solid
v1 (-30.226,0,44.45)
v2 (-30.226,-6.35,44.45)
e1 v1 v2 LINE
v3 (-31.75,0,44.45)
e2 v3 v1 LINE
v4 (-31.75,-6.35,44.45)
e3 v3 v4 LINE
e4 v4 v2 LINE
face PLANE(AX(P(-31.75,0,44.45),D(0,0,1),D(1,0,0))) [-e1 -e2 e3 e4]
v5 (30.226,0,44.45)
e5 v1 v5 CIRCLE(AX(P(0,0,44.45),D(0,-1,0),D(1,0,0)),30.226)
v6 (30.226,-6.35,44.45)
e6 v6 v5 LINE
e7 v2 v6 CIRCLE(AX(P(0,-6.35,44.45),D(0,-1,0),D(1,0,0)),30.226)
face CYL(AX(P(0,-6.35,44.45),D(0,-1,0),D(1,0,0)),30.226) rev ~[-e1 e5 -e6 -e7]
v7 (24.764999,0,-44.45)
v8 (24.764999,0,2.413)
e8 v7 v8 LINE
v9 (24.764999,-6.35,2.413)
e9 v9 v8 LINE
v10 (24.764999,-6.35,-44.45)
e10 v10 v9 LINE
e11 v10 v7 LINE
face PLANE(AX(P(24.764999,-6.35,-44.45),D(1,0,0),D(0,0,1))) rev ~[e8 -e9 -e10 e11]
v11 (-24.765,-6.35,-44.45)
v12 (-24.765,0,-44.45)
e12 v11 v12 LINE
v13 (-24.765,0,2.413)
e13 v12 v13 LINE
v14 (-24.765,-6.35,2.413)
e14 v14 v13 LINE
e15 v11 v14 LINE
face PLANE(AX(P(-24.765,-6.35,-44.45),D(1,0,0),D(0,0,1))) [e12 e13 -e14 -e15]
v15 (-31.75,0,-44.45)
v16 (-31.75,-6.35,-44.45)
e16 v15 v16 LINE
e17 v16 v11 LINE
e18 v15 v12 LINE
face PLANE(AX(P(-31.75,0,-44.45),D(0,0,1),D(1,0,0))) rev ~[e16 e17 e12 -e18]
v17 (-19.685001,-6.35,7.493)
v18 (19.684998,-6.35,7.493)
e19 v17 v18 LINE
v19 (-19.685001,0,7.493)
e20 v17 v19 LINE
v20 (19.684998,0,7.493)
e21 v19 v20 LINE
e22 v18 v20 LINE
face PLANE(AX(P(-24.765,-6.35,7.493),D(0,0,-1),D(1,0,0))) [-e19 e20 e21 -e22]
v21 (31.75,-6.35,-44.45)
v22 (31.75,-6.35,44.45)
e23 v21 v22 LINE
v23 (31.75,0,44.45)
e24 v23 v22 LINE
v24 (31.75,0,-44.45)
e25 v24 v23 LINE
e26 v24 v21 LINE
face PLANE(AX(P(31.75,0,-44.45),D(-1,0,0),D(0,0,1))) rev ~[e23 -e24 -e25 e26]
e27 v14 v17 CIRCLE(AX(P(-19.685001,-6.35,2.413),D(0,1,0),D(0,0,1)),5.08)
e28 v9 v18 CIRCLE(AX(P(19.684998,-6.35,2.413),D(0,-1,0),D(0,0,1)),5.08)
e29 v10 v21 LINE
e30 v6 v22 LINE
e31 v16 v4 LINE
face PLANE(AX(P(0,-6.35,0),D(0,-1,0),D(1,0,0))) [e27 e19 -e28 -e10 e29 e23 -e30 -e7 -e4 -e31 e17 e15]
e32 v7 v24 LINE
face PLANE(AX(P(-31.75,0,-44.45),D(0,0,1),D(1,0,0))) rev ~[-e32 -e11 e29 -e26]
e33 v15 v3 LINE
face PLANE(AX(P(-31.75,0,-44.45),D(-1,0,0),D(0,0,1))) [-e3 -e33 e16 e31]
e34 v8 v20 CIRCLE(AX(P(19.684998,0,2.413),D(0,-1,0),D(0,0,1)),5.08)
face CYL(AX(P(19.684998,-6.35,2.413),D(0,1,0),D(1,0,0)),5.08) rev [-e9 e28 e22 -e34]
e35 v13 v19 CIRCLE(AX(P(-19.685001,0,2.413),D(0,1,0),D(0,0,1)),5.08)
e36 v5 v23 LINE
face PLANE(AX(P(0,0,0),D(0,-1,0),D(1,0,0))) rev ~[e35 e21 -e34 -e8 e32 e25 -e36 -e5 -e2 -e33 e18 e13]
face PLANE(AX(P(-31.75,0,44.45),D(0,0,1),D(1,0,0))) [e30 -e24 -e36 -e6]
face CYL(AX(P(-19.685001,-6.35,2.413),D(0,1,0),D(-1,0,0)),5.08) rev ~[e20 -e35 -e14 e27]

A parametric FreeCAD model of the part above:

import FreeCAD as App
import Part
import Sketcher
from FreeCAD import Vector
Q = App.Units.Quantity


def edges_at(feature, points):
    """Names of the edges that pass closest to the given points."""
    edges = feature.Shape.Edges
    near = lambda p: min(range(len(edges)), key=lambda i: edges[i].distToShape(Part.Vertex(*p))[0])
    return sorted({f"Edge{near(p) + 1}" for p in points})


def add_polygon(sketch, points):
    """Adds a closed chain of lines whose ends are joined by coincident constraints."""
    first, n = sketch.GeometryCount, len(points)
    for a, b in zip(points, points[1:] + points[:1]):
        sketch.addGeometry(Part.LineSegment(App.Vector(*a, 0), App.Vector(*b, 0)), False)
    for i in range(n):
        sketch.addConstraint(Sketcher.Constraint("Coincident", first + i, 2, first + (i + 1) % n, 1))

doc = App.newDocument("Part")
body = doc.addObject("PartDesign::Body", "Body")

# Sketch on XZ plane
sketch1 = body.newObject("Sketcher::SketchObject", "Sketch")
sketch1.AttachmentSupport = (doc.getObject("XZ_Plane"), [""])
sketch1.MapMode = "FlatFace"
add_polygon(sketch1, [(-32, 44), (-32, -44), (32, -44), (32, 44)])  # lines 0-3
sketch1.addConstraint([
    Sketcher.Constraint("Vertical", 0),
    Sketcher.Constraint("Horizontal", 1),
    Sketcher.Constraint("Vertical", 2),
    Sketcher.Constraint("Horizontal", 3),
    Sketcher.Constraint("Symmetric", 0, 2, 2, 2, -1, 1),
    Sketcher.Constraint("DistanceX", 1, 1, 1, 2, Q("2.5 in")),
    Sketcher.Constraint("DistanceY", 0, 2, 0, 1, Q("3.5 in")),
])
pad1 = body.newObject("PartDesign::Pad", "Pad")
pad1.Profile = sketch1
pad1.Length = Q("0.25 in")

# Sketch on XZ plane
sketch2 = body.newObject("Sketcher::SketchObject", "Sketch001")
sketch2.AttachmentSupport = (doc.getObject("XZ_Plane"), [""])
sketch2.MapMode = "FlatFace"
sketch2.AttachmentOffset = App.Placement(Vector(0, 0, 0.25 * 25.4), App.Rotation())
sketch2.addGeometry(Part.Circle(Vector(0, 44, 0), Vector(0, 0, 1), 30), False)
sketch2.addConstraint([
    Sketcher.Constraint("PointOnObject", 0, 3, -2),
    Sketcher.Constraint("Diameter", 0, Q("2.38 in")),
    Sketcher.Constraint("DistanceY", -1, 1, 0, 3, Q("1.75 in")),
])
pocket1 = body.newObject("PartDesign::Pocket", "Pocket")
pocket1.Profile = sketch2
pocket1.Type = "ThroughAll"

# Sketch on XZ plane
sketch3 = body.newObject("Sketcher::SketchObject", "Sketch002")
sketch3.AttachmentSupport = (doc.getObject("XZ_Plane"), [""])
sketch3.MapMode = "FlatFace"
sketch3.AttachmentOffset = App.Placement(Vector(0, 0, 0.25 * 25.4), App.Rotation())
add_polygon(sketch3, [(-25, 7), (-25, -44), (25, -44), (25, 7)])  # lines 0-3
sketch3.addConstraint([
    Sketcher.Constraint("Vertical", 0),
    Sketcher.Constraint("Horizontal", 1),
    Sketcher.Constraint("Vertical", 2),
    Sketcher.Constraint("Horizontal", 3),
    Sketcher.Constraint("DistanceX", 1, 1, 1, 2, Q("1.95 in")),
    Sketcher.Constraint("DistanceY", 0, 2, 0, 1, Q("2.045 in")),
    Sketcher.Constraint("DistanceY", 0, 2, -1, 1, Q("1.75 in")),
    Sketcher.Constraint("DistanceX", 0, 2, -1, 1, Q("0.975 in")),
])
pocket2 = body.newObject("PartDesign::Pocket", "Pocket001")
pocket2.Profile = sketch3
pocket2.Type = "ThroughAll"
doc.recompute()

fillet = body.newObject("PartDesign::Fillet", "Fillet")
fillet.Base = (pocket2, edges_at(pocket2, [(-24.765, -3.175, 7.493), (24.765, -3.175, 7.493)]))
fillet.Radius = Q("0.2 in")

doc.recompute()
